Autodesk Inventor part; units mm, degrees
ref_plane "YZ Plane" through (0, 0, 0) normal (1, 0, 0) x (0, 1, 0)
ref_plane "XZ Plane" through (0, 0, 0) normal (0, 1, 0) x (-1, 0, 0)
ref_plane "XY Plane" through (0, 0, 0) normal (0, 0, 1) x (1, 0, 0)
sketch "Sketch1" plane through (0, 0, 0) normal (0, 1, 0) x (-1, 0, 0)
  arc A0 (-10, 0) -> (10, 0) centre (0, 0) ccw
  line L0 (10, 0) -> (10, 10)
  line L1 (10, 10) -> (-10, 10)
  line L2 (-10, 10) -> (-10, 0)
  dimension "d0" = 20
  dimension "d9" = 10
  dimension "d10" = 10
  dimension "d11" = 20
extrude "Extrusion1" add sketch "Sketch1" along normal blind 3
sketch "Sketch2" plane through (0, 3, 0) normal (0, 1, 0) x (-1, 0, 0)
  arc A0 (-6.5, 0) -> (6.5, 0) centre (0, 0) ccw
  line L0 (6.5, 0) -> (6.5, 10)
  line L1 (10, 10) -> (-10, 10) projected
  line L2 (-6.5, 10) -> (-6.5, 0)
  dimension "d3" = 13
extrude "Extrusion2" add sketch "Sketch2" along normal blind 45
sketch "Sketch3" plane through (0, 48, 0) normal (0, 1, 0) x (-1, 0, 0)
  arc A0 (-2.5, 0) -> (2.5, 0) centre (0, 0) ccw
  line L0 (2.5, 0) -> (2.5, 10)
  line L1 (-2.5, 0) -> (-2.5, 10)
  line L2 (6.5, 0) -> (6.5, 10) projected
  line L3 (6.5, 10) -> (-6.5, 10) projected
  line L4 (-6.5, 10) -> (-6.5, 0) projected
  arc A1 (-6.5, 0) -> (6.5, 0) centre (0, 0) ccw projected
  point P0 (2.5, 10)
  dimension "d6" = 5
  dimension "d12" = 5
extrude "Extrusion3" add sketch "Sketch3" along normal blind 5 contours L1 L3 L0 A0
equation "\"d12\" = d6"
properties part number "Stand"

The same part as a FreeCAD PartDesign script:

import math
import FreeCAD as App
import Part
import Sketcher

doc = App.newDocument("Part")
params = doc.addObject("Spreadsheet::Sheet", "Params")
for row, (alias, value) in enumerate([
    ("sketch1_radius", "10 mm"),
    ("sketch1_height", "10 mm"),
    ("pad1_length", "3 mm"),
    ("sketch2_radius", "6.5 mm"),
    ("sketch2_height", "10 mm"),
    ("pad2_length", "45 mm"),
    ("sketch3_radius", "2.5 mm"),
    ("sketch3_height", "10 mm"),
    ("pad3_length", "5 mm"),
], start=1):
    params.set(f"A{row}", alias)
    params.set(f"B{row}", "=" + value)
    params.setAlias(f"B{row}", alias)

body = doc.addObject("PartDesign::Body", "Body")

# Sketch on XZ plane
sketch1 = body.newObject("Sketcher::SketchObject", "Sketch")
sketch1.AttachmentSupport = (doc.getObject("XZ_Plane"), [""])
sketch1.MapMode = "FlatFace"
sketch1.addGeometry([
    Part.LineSegment(App.Vector(10, 10, 0), App.Vector(10, 0, 0)),
    Part.ArcOfCircle(Part.Circle(App.Vector(0, 0, 0), App.Vector(0, 0, 1), 10), math.radians(180), math.radians(360)),
    Part.LineSegment(App.Vector(-10, 0, 0), App.Vector(-10, 10, 0)),
    Part.LineSegment(App.Vector(-10, 10, 0), App.Vector(10, 10, 0)),
], False)
sketch1.addConstraint([
    Sketcher.Constraint("Tangent", 0, 2, 1, 2),
    Sketcher.Constraint("Tangent", 1, 1, 2, 1),
    Sketcher.Constraint("Coincident", 2, 2, 3, 1),
    Sketcher.Constraint("Coincident", 3, 2, 0, 1),
    Sketcher.Constraint("Vertical", 0),
    Sketcher.Constraint("Vertical", 2),
    Sketcher.Constraint("Horizontal", 3),
    Sketcher.Constraint("Coincident", 1, 3, -1, 1),
    Sketcher.Constraint("Radius", 1, 10.0),
    Sketcher.Constraint("DistanceY", 0, 2, 0, 1, 10.0),
])
sketch1.setExpression("Constraints[8]", "Params.sketch1_radius")
sketch1.setExpression("Constraints[9]", "Params.sketch1_height")
pad1 = body.newObject("PartDesign::Pad", "Pad")
pad1.Profile = sketch1
pad1.setExpression("Length", "Params.pad1_length")
pad1.Reversed = True

# Sketch on XZ plane
sketch2 = body.newObject("Sketcher::SketchObject", "Sketch001")
sketch2.AttachmentSupport = (doc.getObject("XZ_Plane"), [""])
sketch2.MapMode = "FlatFace"
sketch2.AttachmentOffset = App.Placement(App.Vector(0, 0, -3), App.Rotation())
sketch2.addGeometry([
    Part.LineSegment(App.Vector(6.5, 10, 0), App.Vector(6.5, 0, 0)),
    Part.ArcOfCircle(Part.Circle(App.Vector(0, 0, 0), App.Vector(0, 0, 1), 6.5), math.radians(180), math.radians(360)),
    Part.LineSegment(App.Vector(-6.5, 0, 0), App.Vector(-6.5, 10, 0)),
    Part.LineSegment(App.Vector(-6.5, 10, 0), App.Vector(6.5, 10, 0)),
], False)
sketch2.addConstraint([
    Sketcher.Constraint("Tangent", 0, 2, 1, 2),
    Sketcher.Constraint("Tangent", 1, 1, 2, 1),
    Sketcher.Constraint("Coincident", 2, 2, 3, 1),
    Sketcher.Constraint("Coincident", 3, 2, 0, 1),
    Sketcher.Constraint("Vertical", 0),
    Sketcher.Constraint("Vertical", 2),
    Sketcher.Constraint("Horizontal", 3),
    Sketcher.Constraint("Coincident", 1, 3, -1, 1),
    Sketcher.Constraint("Radius", 1, 6.5),
    Sketcher.Constraint("DistanceY", 0, 2, 0, 1, 10.0),
])
sketch2.setExpression("Constraints[8]", "Params.sketch2_radius")
sketch2.setExpression("Constraints[9]", "Params.sketch2_height")
pad2 = body.newObject("PartDesign::Pad", "Pad001")
pad2.Profile = sketch2
pad2.setExpression("Length", "Params.pad2_length")
pad2.Reversed = True

# Sketch on XZ plane
sketch3 = body.newObject("Sketcher::SketchObject", "Sketch002")
sketch3.AttachmentSupport = (doc.getObject("XZ_Plane"), [""])
sketch3.MapMode = "FlatFace"
sketch3.AttachmentOffset = App.Placement(App.Vector(0, 0, -48), App.Rotation())
sketch3.addGeometry([
    Part.LineSegment(App.Vector(2.5, 10, 0), App.Vector(2.5, 0, 0)),
    Part.ArcOfCircle(Part.Circle(App.Vector(0, 0, 0), App.Vector(0, 0, 1), 2.5), math.radians(180), math.radians(360)),
    Part.LineSegment(App.Vector(-2.5, 0, 0), App.Vector(-2.5, 10, 0)),
    Part.LineSegment(App.Vector(-2.5, 10, 0), App.Vector(2.5, 10, 0)),
], False)
sketch3.addConstraint([
    Sketcher.Constraint("Tangent", 0, 2, 1, 2),
    Sketcher.Constraint("Tangent", 1, 1, 2, 1),
    Sketcher.Constraint("Coincident", 2, 2, 3, 1),
    Sketcher.Constraint("Coincident", 3, 2, 0, 1),
    Sketcher.Constraint("Vertical", 0),
    Sketcher.Constraint("Vertical", 2),
    Sketcher.Constraint("Horizontal", 3),
    Sketcher.Constraint("Coincident", 1, 3, -1, 1),
    Sketcher.Constraint("Radius", 1, 2.5),
    Sketcher.Constraint("DistanceY", 0, 2, 0, 1, 10.0),
])
sketch3.setExpression("Constraints[8]", "Params.sketch3_radius")
sketch3.setExpression("Constraints[9]", "Params.sketch3_height")
pad3 = body.newObject("PartDesign::Pad", "Pad002")
pad3.Profile = sketch3
pad3.setExpression("Length", "Params.pad3_length")
pad3.Reversed = True

doc.recompute()
